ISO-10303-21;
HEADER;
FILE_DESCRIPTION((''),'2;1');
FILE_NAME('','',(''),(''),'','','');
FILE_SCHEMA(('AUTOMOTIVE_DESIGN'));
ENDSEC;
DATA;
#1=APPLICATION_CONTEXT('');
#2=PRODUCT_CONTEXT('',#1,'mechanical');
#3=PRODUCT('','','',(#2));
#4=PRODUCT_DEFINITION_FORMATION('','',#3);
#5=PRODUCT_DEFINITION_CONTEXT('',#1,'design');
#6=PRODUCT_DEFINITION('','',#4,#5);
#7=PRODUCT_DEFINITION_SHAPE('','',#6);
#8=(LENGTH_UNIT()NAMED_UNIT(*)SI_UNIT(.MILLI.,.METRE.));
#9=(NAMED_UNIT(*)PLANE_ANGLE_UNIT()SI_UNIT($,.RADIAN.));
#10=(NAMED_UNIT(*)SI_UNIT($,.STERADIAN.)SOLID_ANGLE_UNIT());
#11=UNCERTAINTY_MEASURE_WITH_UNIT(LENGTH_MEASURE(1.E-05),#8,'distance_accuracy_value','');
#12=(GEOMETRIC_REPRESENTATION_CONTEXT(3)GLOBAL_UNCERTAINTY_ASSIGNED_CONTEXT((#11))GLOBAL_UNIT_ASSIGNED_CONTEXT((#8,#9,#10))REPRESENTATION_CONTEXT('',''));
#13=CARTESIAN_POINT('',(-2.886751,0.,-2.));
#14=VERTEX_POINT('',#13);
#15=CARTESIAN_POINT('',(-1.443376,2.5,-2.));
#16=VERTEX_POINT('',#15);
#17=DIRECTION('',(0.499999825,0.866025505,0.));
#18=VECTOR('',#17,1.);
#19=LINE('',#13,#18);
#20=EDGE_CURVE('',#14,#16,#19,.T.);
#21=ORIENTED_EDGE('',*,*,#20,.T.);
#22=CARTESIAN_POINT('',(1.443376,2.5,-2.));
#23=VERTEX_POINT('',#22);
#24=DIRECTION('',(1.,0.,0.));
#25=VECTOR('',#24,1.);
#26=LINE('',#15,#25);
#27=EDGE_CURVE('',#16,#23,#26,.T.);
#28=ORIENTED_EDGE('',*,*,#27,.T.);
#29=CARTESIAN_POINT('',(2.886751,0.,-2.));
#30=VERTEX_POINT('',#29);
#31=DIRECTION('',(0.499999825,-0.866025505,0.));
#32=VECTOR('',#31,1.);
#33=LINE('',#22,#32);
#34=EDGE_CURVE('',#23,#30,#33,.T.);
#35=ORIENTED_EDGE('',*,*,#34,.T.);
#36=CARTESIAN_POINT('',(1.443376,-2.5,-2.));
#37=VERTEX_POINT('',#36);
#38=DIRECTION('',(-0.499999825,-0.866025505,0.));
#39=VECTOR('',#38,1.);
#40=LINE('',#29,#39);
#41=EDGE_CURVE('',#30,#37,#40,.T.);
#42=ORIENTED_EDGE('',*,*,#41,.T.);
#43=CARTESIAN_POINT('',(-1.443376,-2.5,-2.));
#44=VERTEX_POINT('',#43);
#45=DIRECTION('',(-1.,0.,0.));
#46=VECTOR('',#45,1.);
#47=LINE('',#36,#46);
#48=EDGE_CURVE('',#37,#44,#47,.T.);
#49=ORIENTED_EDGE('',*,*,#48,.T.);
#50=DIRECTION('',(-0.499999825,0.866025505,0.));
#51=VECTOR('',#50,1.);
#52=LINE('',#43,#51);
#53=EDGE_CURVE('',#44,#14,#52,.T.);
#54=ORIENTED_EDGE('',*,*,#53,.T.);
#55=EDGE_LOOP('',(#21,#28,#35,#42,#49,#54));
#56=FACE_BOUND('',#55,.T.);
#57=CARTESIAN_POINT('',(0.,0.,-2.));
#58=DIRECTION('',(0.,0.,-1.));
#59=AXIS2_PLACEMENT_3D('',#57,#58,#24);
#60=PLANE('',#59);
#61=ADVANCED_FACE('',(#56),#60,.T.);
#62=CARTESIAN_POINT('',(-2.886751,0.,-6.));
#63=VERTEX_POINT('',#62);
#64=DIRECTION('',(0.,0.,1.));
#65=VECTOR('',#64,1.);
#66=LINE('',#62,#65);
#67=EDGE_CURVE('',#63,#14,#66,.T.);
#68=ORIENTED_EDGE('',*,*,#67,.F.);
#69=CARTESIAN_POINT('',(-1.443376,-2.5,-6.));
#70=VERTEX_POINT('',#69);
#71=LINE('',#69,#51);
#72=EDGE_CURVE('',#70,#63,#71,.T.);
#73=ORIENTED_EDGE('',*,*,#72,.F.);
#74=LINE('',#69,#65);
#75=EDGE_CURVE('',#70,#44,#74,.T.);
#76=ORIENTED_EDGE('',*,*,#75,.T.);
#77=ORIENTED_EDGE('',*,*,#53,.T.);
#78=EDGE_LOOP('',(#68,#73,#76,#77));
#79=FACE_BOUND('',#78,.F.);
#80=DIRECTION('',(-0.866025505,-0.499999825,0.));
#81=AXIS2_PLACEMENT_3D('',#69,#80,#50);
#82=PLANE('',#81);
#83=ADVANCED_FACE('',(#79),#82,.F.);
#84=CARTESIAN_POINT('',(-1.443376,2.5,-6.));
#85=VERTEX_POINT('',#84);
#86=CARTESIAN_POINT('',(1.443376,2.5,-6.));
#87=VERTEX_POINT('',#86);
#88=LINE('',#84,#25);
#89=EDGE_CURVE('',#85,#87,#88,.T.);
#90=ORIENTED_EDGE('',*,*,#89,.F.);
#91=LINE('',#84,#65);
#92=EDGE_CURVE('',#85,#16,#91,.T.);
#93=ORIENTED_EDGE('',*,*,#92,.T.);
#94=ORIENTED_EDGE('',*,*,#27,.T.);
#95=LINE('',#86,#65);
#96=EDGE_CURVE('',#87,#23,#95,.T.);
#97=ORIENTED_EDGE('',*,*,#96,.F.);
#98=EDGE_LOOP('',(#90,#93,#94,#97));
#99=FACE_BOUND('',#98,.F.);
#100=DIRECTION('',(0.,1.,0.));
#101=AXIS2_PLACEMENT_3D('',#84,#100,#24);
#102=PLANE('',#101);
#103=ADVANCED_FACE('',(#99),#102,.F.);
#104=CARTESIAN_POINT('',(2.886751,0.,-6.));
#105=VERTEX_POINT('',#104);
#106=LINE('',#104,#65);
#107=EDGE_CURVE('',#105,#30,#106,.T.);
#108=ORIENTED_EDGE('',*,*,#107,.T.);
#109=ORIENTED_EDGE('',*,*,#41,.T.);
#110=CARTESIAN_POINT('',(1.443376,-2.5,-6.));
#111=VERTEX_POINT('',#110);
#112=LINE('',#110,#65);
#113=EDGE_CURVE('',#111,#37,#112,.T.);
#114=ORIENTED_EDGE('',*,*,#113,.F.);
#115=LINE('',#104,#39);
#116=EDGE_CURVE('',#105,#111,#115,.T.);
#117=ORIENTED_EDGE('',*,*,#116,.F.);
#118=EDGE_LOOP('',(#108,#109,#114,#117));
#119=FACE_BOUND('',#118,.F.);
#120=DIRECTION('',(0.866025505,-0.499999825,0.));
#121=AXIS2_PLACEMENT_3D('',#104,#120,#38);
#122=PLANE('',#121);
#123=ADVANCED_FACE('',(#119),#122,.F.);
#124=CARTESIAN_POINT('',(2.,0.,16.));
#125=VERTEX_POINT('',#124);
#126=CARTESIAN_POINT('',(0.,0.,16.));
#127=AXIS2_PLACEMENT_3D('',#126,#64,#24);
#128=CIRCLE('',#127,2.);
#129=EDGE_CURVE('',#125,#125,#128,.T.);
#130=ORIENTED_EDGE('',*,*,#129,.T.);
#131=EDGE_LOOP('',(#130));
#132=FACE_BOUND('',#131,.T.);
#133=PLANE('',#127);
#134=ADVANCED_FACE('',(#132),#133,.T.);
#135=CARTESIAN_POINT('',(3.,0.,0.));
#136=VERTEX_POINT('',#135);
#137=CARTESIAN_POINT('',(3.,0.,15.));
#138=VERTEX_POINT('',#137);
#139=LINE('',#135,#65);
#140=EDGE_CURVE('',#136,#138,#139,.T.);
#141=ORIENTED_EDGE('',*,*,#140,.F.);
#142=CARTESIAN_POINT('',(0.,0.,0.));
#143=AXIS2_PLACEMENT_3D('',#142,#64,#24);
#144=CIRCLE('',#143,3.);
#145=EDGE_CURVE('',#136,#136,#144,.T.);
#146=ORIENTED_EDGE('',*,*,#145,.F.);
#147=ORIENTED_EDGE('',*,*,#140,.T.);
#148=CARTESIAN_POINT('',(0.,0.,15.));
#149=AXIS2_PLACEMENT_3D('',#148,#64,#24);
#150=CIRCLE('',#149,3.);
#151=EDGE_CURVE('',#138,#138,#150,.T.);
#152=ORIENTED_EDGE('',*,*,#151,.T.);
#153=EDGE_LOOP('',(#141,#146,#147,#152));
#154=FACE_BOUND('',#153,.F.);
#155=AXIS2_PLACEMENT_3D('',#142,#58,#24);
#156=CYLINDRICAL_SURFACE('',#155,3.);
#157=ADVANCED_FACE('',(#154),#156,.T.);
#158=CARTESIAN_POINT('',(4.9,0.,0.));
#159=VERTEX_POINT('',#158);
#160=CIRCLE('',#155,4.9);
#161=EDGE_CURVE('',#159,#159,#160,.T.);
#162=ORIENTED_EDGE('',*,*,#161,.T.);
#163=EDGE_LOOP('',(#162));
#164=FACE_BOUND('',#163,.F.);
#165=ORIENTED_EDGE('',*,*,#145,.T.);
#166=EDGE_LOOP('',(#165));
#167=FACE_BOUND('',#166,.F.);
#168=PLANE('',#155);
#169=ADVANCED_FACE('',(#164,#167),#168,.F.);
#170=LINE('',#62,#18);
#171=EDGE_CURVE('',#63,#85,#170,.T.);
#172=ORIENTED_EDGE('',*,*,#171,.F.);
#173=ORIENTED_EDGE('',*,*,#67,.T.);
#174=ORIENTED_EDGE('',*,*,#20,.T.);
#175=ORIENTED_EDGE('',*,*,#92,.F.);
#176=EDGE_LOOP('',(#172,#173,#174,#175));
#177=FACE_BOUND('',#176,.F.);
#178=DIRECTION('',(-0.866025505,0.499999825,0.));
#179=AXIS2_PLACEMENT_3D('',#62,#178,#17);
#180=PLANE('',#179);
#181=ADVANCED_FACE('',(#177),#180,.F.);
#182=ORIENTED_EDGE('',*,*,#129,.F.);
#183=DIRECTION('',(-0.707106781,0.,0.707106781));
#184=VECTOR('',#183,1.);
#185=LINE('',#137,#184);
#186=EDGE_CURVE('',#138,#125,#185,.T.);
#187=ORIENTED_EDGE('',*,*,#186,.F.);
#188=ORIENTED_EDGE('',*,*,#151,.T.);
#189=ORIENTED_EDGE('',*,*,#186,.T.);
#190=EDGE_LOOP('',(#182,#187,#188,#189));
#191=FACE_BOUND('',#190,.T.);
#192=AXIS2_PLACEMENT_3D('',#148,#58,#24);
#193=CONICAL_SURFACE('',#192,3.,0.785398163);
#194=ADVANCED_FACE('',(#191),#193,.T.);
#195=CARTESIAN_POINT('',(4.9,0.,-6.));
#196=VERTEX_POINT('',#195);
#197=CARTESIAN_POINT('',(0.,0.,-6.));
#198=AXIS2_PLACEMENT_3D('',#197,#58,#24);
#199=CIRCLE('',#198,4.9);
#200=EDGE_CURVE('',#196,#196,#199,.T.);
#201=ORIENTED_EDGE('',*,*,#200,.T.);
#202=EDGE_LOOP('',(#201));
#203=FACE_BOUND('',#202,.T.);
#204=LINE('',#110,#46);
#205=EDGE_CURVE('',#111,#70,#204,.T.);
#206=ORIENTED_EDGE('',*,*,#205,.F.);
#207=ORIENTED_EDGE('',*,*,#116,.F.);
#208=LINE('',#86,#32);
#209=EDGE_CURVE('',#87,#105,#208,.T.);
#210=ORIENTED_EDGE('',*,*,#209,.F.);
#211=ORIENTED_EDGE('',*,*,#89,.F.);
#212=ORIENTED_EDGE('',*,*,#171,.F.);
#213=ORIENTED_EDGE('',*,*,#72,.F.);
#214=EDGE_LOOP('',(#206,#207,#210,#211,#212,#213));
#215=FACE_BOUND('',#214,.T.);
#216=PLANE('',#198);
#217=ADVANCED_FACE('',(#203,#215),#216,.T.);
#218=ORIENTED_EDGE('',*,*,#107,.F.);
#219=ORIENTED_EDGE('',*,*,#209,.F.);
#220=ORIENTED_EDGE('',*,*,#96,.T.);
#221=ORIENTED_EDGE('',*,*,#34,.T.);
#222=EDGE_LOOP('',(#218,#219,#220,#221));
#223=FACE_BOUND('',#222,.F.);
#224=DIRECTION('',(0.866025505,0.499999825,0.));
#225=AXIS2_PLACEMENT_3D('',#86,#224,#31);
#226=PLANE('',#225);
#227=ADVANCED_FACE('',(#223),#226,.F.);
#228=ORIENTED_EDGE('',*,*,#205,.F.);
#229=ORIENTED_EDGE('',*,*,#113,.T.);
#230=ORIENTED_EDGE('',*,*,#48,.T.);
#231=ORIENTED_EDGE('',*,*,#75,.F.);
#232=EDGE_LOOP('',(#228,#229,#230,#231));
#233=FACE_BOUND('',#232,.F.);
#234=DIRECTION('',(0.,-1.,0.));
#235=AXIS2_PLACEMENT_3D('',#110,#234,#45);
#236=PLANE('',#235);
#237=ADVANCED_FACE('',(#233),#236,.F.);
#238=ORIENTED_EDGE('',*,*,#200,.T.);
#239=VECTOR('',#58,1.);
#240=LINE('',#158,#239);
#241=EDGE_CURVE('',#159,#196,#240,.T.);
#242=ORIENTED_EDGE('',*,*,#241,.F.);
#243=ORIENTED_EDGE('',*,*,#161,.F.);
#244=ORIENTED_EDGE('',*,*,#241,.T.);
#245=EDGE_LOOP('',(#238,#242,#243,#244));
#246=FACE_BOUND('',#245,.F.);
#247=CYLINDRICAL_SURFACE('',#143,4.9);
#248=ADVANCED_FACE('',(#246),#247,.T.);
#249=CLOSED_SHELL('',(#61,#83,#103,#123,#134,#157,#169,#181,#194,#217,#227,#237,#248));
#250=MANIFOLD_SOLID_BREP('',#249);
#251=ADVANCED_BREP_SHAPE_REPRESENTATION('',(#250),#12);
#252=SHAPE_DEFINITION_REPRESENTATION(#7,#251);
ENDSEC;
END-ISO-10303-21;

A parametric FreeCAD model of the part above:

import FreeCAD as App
import Part
import Sketcher
Q = App.Units.Quantity


def edges_at(feature, points):
    """Names of the edges that pass closest to the given points."""
    edges = feature.Shape.Edges
    near = lambda p: min(range(len(edges)), key=lambda i: edges[i].distToShape(Part.Vertex(*p))[0])
    return sorted({f"Edge{near(p) + 1}" for p in points})

doc = App.newDocument("Part")
body = doc.addObject("PartDesign::Body", "Body")

sketch1 = doc.addObject("Sketcher::SketchObject", "Sketch")
body.addObject(sketch1)
sketch1.AttachmentSupport = (doc.XY_Plane, [""])
sketch1.MapMode = "FlatFace"
sketch1.addGeometry(Part.Circle(App.Vector(0, 0, 0), App.Vector(0, 0, 1), 3), False)
sketch1.addConstraint([
    Sketcher.Constraint("Coincident", 0, 3, -1, 1),
    Sketcher.Constraint("Diameter", 0, 6.0),
])
pad1 = doc.addObject("PartDesign::Pad", "Pad")
body.addObject(pad1)
pad1.Profile = sketch1
pad1.Length = 16

sketch2 = doc.addObject("Sketcher::SketchObject", "Sketch001")
body.addObject(sketch2)
sketch2.AttachmentSupport = (doc.XY_Plane, [""])
sketch2.MapMode = "FlatFace"
sketch2.addGeometry(Part.Circle(App.Vector(0, 0, 0), App.Vector(0, 0, 1), 4.9), False)
sketch2.addConstraint([
    Sketcher.Constraint("Coincident", 0, 3, -1, 1),
    Sketcher.Constraint("Diameter", 0, 9.8),
])
pad2 = doc.addObject("PartDesign::Pad", "Pad001")
body.addObject(pad2)
pad2.Profile = sketch2
pad2.Length = 6
pad2.Reversed = True

sketch3 = doc.addObject("Sketcher::SketchObject", "Sketch002")
body.addObject(sketch3)
sketch3.AttachmentSupport = (doc.XY_Plane, [""])
sketch3.MapMode = "FlatFace"
sketch3.AttachmentOffset = App.Placement(App.Vector(0, 0, -6), App.Rotation())
sketch3.addGeometry([
    Part.LineSegment(App.Vector(1.4, -2.5, 0), App.Vector(-1.4, -2.5, 0)),
    Part.LineSegment(App.Vector(-1.4, -2.5, 0), App.Vector(-2.9, 0, 0)),
    Part.LineSegment(App.Vector(-2.9, 0, 0), App.Vector(-1.4, 2.5, 0)),
    Part.LineSegment(App.Vector(-1.4, 2.5, 0), App.Vector(1.4, 2.5, 0)),
    Part.LineSegment(App.Vector(1.4, 2.5, 0), App.Vector(2.9, 0, 0)),
    Part.LineSegment(App.Vector(2.9, 0, 0), App.Vector(1.4, -2.5, 0)),
], False)
sketch3.addConstraint([
    Sketcher.Constraint("Coincident", 0, 2, 1, 1),
    Sketcher.Constraint("Coincident", 1, 2, 2, 1),
    Sketcher.Constraint("Coincident", 2, 2, 3, 1),
    Sketcher.Constraint("Coincident", 3, 2, 4, 1),
    Sketcher.Constraint("Coincident", 4, 2, 5, 1),
    Sketcher.Constraint("Coincident", 5, 2, 0, 1),
    Sketcher.Constraint("Horizontal", 0),
    Sketcher.Constraint("Horizontal", 3),
    Sketcher.Constraint("Symmetric", 0, 2, 3, 2, -1, 1),
    Sketcher.Constraint("Symmetric", 1, 2, 4, 2, -1, 1),
    Sketcher.Constraint("PointOnObject", 1, 2, -1),
    Sketcher.Constraint("Parallel", 2, 5),
    Sketcher.Constraint("Vertical", 0, 2, 2, 2),
    Sketcher.Constraint("Angle", 1, Q("119.999988 deg")),
    Sketcher.Constraint("DistanceY", 0, 2, 2, 2, 5.0),
    Sketcher.Constraint("DistanceX", 0, 2, 0, 1, 2.886752),
])
pocket1 = doc.addObject("PartDesign::Pocket", "Pocket")
body.addObject(pocket1)
pocket1.Profile = sketch3
pocket1.Length = 4
pocket1.Reversed = True
doc.recompute()

chamfer = doc.addObject("PartDesign::Chamfer", "Chamfer")
body.addObject(chamfer)
chamfer.Base = (pocket1, edges_at(pocket1, [(-3, 0, 16)]))
chamfer.Size = 1

doc.recompute()
